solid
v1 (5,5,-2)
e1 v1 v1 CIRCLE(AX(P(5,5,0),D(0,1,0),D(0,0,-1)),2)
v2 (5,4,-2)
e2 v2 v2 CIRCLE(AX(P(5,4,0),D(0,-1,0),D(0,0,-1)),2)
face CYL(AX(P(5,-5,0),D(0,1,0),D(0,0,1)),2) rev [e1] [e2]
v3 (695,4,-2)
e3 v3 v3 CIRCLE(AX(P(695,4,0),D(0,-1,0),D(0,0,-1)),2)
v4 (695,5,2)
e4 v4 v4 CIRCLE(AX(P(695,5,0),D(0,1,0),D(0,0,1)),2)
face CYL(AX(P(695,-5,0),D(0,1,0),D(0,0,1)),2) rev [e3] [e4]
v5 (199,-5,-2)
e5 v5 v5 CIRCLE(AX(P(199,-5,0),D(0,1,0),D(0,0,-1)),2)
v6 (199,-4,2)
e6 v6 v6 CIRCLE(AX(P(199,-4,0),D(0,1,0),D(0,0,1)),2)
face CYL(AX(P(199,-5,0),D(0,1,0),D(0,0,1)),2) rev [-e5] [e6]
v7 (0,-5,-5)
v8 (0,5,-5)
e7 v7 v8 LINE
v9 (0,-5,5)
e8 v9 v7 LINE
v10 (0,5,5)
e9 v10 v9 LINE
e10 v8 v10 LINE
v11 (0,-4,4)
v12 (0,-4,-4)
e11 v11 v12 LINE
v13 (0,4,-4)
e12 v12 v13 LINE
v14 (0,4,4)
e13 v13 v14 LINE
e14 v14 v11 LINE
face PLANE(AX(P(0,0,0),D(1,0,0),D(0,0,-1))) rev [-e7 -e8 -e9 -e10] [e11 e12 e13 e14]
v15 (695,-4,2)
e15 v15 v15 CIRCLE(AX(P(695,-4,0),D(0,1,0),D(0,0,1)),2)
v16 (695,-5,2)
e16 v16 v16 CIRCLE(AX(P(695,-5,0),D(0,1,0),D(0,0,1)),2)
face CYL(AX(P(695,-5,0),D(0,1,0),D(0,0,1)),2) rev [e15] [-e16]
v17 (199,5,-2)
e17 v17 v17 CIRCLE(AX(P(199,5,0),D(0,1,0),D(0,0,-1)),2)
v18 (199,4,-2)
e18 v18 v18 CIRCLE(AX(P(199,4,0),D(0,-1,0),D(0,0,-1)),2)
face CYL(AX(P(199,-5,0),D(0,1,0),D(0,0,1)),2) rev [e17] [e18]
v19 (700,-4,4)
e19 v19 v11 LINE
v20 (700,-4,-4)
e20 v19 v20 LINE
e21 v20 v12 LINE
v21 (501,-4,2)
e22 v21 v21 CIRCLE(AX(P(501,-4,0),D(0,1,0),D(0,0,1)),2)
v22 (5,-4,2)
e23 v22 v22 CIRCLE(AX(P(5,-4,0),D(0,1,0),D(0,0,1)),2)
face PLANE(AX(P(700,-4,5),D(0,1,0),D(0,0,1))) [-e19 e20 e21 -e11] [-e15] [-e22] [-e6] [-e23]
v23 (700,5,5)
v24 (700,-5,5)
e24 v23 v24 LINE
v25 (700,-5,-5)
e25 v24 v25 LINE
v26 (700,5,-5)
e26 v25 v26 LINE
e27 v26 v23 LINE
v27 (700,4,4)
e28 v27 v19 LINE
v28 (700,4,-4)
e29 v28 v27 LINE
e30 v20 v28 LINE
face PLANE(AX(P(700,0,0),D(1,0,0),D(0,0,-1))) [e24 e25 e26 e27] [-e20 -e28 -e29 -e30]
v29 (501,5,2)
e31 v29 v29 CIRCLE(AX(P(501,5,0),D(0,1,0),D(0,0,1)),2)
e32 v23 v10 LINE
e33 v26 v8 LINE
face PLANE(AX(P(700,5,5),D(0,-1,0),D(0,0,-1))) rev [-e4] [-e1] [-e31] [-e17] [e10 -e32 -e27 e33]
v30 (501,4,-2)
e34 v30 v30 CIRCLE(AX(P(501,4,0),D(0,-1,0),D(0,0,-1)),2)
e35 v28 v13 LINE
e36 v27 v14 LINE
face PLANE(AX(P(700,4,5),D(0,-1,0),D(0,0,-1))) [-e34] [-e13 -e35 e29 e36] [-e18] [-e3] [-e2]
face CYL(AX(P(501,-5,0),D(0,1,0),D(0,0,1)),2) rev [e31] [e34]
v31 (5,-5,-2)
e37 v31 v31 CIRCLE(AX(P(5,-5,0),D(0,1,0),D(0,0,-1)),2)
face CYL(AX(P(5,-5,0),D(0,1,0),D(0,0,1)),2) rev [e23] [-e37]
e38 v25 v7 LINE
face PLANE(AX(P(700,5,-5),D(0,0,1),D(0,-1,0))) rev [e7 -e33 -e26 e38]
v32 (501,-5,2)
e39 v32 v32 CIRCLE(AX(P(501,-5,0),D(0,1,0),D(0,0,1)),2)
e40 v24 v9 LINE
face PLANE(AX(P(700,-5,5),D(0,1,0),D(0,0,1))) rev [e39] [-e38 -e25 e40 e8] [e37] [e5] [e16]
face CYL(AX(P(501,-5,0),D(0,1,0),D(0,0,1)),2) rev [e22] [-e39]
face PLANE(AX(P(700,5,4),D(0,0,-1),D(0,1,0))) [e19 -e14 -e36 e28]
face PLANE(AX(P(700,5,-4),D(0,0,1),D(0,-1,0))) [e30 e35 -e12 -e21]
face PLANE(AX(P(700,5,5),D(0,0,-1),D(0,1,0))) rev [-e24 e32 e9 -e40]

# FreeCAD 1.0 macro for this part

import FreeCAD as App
import Part
import Sketcher

V = App.Vector

doc = App.newDocument("Part")
body = doc.addObject("PartDesign::Body", "Body")

# Sketch on YZ plane
sketch1 = body.newObject("Sketcher::SketchObject", "Sketch")
sketch1.AttachmentSupport = (doc.getObject("YZ_Plane"), [""])
sketch1.MapMode = "FlatFace"
sketch1.addGeometry([
    Part.LineSegment(V(5, 5, 0), V(-5, 5, 0)),  # 0
    Part.LineSegment(V(-5, 5, 0), V(-5, -5, 0)),  # 1
    Part.LineSegment(V(-5, -5, 0), V(5, -5, 0)),  # 2
    Part.LineSegment(V(5, -5, 0), V(5, 5, 0)),  # 3
    Part.LineSegment(V(-4, -4, 0), V(-4, 4, 0)),  # 4
    Part.LineSegment(V(-4, 4, 0), V(4, 4, 0)),  # 5
    Part.LineSegment(V(4, 4, 0), V(4, -4, 0)),  # 6
    Part.LineSegment(V(4, -4, 0), V(-4, -4, 0)),  # 7
], False)
sketch1.addConstraint([
    Sketcher.Constraint("Coincident", 0, 2, 1, 1),
    Sketcher.Constraint("Coincident", 1, 2, 2, 1),
    Sketcher.Constraint("Coincident", 2, 2, 3, 1),
    Sketcher.Constraint("Coincident", 3, 2, 0, 1),
    Sketcher.Constraint("Coincident", 4, 2, 5, 1),
    Sketcher.Constraint("Coincident", 5, 2, 6, 1),
    Sketcher.Constraint("Coincident", 6, 2, 7, 1),
    Sketcher.Constraint("Coincident", 7, 2, 4, 1),
    Sketcher.Constraint("Horizontal", 0),
    Sketcher.Constraint("Vertical", 1),
    Sketcher.Constraint("Horizontal", 2),
    Sketcher.Constraint("Vertical", 3),
    Sketcher.Constraint("Vertical", 4),
    Sketcher.Constraint("Horizontal", 5),
    Sketcher.Constraint("Vertical", 6),
    Sketcher.Constraint("Horizontal", 7),
    Sketcher.Constraint("Symmetric", 0, 2, 2, 2, -1, 1),
    Sketcher.Constraint("Symmetric", 4, 2, 6, 2, -1, 1),
    Sketcher.Constraint("Equal", 2, 1),
    Sketcher.Constraint("Equal", 7, 4),
    Sketcher.Constraint("DistanceX", 0, 2, 0, 1, 10.0),
    Sketcher.Constraint("DistanceX", 5, 1, 5, 2, 8.0),
])
pad1 = body.newObject("PartDesign::Pad", "Pad")
pad1.Profile = sketch1
pad1.Length = 700

# Sketch on XZ plane
sketch2 = body.newObject("Sketcher::SketchObject", "Sketch001")
sketch2.AttachmentSupport = (doc.getObject("XZ_Plane"), [""])
sketch2.MapMode = "FlatFace"
sketch2.AttachmentOffset = App.Placement(V(0, 0, -5), App.Rotation())
sketch2.addGeometry([
    Part.Circle(V(695, 0, 0), V(0, 0, 1), 2),
    Part.Circle(V(5, 0, 0), V(0, 0, 1), 2),
    Part.Circle(V(501, 0, 0), V(0, 0, 1), 2),
    Part.Circle(V(199, 0, 0), V(0, 0, 1), 2),
], False)
sketch2.addConstraint([
    Sketcher.Constraint("Equal", 0, 1),
    Sketcher.Constraint("Equal", 1, 2),
    Sketcher.Constraint("Equal", 2, 3),
    Sketcher.Constraint("PointOnObject", 0, 3, -1),
    Sketcher.Constraint("PointOnObject", 1, 3, -1),
    Sketcher.Constraint("PointOnObject", 2, 3, -1),
    Sketcher.Constraint("PointOnObject", 3, 3, -1),
    Sketcher.Constraint("Diameter", 0, 4.0),
    Sketcher.Constraint("DistanceX", -1, 1, 0, 3, 695.0),
    Sketcher.Constraint("DistanceX", -1, 1, 1, 3, 5.0),
    Sketcher.Constraint("DistanceX", -1, 1, 2, 3, 501.0),
    Sketcher.Constraint("DistanceX", -1, 1, 3, 3, 199.0),
])
pocket1 = body.newObject("PartDesign::Pocket", "Pocket")
pocket1.Profile = sketch2
pocket1.Type = "ThroughAll"
pocket1.Reversed = True

doc.recompute()
